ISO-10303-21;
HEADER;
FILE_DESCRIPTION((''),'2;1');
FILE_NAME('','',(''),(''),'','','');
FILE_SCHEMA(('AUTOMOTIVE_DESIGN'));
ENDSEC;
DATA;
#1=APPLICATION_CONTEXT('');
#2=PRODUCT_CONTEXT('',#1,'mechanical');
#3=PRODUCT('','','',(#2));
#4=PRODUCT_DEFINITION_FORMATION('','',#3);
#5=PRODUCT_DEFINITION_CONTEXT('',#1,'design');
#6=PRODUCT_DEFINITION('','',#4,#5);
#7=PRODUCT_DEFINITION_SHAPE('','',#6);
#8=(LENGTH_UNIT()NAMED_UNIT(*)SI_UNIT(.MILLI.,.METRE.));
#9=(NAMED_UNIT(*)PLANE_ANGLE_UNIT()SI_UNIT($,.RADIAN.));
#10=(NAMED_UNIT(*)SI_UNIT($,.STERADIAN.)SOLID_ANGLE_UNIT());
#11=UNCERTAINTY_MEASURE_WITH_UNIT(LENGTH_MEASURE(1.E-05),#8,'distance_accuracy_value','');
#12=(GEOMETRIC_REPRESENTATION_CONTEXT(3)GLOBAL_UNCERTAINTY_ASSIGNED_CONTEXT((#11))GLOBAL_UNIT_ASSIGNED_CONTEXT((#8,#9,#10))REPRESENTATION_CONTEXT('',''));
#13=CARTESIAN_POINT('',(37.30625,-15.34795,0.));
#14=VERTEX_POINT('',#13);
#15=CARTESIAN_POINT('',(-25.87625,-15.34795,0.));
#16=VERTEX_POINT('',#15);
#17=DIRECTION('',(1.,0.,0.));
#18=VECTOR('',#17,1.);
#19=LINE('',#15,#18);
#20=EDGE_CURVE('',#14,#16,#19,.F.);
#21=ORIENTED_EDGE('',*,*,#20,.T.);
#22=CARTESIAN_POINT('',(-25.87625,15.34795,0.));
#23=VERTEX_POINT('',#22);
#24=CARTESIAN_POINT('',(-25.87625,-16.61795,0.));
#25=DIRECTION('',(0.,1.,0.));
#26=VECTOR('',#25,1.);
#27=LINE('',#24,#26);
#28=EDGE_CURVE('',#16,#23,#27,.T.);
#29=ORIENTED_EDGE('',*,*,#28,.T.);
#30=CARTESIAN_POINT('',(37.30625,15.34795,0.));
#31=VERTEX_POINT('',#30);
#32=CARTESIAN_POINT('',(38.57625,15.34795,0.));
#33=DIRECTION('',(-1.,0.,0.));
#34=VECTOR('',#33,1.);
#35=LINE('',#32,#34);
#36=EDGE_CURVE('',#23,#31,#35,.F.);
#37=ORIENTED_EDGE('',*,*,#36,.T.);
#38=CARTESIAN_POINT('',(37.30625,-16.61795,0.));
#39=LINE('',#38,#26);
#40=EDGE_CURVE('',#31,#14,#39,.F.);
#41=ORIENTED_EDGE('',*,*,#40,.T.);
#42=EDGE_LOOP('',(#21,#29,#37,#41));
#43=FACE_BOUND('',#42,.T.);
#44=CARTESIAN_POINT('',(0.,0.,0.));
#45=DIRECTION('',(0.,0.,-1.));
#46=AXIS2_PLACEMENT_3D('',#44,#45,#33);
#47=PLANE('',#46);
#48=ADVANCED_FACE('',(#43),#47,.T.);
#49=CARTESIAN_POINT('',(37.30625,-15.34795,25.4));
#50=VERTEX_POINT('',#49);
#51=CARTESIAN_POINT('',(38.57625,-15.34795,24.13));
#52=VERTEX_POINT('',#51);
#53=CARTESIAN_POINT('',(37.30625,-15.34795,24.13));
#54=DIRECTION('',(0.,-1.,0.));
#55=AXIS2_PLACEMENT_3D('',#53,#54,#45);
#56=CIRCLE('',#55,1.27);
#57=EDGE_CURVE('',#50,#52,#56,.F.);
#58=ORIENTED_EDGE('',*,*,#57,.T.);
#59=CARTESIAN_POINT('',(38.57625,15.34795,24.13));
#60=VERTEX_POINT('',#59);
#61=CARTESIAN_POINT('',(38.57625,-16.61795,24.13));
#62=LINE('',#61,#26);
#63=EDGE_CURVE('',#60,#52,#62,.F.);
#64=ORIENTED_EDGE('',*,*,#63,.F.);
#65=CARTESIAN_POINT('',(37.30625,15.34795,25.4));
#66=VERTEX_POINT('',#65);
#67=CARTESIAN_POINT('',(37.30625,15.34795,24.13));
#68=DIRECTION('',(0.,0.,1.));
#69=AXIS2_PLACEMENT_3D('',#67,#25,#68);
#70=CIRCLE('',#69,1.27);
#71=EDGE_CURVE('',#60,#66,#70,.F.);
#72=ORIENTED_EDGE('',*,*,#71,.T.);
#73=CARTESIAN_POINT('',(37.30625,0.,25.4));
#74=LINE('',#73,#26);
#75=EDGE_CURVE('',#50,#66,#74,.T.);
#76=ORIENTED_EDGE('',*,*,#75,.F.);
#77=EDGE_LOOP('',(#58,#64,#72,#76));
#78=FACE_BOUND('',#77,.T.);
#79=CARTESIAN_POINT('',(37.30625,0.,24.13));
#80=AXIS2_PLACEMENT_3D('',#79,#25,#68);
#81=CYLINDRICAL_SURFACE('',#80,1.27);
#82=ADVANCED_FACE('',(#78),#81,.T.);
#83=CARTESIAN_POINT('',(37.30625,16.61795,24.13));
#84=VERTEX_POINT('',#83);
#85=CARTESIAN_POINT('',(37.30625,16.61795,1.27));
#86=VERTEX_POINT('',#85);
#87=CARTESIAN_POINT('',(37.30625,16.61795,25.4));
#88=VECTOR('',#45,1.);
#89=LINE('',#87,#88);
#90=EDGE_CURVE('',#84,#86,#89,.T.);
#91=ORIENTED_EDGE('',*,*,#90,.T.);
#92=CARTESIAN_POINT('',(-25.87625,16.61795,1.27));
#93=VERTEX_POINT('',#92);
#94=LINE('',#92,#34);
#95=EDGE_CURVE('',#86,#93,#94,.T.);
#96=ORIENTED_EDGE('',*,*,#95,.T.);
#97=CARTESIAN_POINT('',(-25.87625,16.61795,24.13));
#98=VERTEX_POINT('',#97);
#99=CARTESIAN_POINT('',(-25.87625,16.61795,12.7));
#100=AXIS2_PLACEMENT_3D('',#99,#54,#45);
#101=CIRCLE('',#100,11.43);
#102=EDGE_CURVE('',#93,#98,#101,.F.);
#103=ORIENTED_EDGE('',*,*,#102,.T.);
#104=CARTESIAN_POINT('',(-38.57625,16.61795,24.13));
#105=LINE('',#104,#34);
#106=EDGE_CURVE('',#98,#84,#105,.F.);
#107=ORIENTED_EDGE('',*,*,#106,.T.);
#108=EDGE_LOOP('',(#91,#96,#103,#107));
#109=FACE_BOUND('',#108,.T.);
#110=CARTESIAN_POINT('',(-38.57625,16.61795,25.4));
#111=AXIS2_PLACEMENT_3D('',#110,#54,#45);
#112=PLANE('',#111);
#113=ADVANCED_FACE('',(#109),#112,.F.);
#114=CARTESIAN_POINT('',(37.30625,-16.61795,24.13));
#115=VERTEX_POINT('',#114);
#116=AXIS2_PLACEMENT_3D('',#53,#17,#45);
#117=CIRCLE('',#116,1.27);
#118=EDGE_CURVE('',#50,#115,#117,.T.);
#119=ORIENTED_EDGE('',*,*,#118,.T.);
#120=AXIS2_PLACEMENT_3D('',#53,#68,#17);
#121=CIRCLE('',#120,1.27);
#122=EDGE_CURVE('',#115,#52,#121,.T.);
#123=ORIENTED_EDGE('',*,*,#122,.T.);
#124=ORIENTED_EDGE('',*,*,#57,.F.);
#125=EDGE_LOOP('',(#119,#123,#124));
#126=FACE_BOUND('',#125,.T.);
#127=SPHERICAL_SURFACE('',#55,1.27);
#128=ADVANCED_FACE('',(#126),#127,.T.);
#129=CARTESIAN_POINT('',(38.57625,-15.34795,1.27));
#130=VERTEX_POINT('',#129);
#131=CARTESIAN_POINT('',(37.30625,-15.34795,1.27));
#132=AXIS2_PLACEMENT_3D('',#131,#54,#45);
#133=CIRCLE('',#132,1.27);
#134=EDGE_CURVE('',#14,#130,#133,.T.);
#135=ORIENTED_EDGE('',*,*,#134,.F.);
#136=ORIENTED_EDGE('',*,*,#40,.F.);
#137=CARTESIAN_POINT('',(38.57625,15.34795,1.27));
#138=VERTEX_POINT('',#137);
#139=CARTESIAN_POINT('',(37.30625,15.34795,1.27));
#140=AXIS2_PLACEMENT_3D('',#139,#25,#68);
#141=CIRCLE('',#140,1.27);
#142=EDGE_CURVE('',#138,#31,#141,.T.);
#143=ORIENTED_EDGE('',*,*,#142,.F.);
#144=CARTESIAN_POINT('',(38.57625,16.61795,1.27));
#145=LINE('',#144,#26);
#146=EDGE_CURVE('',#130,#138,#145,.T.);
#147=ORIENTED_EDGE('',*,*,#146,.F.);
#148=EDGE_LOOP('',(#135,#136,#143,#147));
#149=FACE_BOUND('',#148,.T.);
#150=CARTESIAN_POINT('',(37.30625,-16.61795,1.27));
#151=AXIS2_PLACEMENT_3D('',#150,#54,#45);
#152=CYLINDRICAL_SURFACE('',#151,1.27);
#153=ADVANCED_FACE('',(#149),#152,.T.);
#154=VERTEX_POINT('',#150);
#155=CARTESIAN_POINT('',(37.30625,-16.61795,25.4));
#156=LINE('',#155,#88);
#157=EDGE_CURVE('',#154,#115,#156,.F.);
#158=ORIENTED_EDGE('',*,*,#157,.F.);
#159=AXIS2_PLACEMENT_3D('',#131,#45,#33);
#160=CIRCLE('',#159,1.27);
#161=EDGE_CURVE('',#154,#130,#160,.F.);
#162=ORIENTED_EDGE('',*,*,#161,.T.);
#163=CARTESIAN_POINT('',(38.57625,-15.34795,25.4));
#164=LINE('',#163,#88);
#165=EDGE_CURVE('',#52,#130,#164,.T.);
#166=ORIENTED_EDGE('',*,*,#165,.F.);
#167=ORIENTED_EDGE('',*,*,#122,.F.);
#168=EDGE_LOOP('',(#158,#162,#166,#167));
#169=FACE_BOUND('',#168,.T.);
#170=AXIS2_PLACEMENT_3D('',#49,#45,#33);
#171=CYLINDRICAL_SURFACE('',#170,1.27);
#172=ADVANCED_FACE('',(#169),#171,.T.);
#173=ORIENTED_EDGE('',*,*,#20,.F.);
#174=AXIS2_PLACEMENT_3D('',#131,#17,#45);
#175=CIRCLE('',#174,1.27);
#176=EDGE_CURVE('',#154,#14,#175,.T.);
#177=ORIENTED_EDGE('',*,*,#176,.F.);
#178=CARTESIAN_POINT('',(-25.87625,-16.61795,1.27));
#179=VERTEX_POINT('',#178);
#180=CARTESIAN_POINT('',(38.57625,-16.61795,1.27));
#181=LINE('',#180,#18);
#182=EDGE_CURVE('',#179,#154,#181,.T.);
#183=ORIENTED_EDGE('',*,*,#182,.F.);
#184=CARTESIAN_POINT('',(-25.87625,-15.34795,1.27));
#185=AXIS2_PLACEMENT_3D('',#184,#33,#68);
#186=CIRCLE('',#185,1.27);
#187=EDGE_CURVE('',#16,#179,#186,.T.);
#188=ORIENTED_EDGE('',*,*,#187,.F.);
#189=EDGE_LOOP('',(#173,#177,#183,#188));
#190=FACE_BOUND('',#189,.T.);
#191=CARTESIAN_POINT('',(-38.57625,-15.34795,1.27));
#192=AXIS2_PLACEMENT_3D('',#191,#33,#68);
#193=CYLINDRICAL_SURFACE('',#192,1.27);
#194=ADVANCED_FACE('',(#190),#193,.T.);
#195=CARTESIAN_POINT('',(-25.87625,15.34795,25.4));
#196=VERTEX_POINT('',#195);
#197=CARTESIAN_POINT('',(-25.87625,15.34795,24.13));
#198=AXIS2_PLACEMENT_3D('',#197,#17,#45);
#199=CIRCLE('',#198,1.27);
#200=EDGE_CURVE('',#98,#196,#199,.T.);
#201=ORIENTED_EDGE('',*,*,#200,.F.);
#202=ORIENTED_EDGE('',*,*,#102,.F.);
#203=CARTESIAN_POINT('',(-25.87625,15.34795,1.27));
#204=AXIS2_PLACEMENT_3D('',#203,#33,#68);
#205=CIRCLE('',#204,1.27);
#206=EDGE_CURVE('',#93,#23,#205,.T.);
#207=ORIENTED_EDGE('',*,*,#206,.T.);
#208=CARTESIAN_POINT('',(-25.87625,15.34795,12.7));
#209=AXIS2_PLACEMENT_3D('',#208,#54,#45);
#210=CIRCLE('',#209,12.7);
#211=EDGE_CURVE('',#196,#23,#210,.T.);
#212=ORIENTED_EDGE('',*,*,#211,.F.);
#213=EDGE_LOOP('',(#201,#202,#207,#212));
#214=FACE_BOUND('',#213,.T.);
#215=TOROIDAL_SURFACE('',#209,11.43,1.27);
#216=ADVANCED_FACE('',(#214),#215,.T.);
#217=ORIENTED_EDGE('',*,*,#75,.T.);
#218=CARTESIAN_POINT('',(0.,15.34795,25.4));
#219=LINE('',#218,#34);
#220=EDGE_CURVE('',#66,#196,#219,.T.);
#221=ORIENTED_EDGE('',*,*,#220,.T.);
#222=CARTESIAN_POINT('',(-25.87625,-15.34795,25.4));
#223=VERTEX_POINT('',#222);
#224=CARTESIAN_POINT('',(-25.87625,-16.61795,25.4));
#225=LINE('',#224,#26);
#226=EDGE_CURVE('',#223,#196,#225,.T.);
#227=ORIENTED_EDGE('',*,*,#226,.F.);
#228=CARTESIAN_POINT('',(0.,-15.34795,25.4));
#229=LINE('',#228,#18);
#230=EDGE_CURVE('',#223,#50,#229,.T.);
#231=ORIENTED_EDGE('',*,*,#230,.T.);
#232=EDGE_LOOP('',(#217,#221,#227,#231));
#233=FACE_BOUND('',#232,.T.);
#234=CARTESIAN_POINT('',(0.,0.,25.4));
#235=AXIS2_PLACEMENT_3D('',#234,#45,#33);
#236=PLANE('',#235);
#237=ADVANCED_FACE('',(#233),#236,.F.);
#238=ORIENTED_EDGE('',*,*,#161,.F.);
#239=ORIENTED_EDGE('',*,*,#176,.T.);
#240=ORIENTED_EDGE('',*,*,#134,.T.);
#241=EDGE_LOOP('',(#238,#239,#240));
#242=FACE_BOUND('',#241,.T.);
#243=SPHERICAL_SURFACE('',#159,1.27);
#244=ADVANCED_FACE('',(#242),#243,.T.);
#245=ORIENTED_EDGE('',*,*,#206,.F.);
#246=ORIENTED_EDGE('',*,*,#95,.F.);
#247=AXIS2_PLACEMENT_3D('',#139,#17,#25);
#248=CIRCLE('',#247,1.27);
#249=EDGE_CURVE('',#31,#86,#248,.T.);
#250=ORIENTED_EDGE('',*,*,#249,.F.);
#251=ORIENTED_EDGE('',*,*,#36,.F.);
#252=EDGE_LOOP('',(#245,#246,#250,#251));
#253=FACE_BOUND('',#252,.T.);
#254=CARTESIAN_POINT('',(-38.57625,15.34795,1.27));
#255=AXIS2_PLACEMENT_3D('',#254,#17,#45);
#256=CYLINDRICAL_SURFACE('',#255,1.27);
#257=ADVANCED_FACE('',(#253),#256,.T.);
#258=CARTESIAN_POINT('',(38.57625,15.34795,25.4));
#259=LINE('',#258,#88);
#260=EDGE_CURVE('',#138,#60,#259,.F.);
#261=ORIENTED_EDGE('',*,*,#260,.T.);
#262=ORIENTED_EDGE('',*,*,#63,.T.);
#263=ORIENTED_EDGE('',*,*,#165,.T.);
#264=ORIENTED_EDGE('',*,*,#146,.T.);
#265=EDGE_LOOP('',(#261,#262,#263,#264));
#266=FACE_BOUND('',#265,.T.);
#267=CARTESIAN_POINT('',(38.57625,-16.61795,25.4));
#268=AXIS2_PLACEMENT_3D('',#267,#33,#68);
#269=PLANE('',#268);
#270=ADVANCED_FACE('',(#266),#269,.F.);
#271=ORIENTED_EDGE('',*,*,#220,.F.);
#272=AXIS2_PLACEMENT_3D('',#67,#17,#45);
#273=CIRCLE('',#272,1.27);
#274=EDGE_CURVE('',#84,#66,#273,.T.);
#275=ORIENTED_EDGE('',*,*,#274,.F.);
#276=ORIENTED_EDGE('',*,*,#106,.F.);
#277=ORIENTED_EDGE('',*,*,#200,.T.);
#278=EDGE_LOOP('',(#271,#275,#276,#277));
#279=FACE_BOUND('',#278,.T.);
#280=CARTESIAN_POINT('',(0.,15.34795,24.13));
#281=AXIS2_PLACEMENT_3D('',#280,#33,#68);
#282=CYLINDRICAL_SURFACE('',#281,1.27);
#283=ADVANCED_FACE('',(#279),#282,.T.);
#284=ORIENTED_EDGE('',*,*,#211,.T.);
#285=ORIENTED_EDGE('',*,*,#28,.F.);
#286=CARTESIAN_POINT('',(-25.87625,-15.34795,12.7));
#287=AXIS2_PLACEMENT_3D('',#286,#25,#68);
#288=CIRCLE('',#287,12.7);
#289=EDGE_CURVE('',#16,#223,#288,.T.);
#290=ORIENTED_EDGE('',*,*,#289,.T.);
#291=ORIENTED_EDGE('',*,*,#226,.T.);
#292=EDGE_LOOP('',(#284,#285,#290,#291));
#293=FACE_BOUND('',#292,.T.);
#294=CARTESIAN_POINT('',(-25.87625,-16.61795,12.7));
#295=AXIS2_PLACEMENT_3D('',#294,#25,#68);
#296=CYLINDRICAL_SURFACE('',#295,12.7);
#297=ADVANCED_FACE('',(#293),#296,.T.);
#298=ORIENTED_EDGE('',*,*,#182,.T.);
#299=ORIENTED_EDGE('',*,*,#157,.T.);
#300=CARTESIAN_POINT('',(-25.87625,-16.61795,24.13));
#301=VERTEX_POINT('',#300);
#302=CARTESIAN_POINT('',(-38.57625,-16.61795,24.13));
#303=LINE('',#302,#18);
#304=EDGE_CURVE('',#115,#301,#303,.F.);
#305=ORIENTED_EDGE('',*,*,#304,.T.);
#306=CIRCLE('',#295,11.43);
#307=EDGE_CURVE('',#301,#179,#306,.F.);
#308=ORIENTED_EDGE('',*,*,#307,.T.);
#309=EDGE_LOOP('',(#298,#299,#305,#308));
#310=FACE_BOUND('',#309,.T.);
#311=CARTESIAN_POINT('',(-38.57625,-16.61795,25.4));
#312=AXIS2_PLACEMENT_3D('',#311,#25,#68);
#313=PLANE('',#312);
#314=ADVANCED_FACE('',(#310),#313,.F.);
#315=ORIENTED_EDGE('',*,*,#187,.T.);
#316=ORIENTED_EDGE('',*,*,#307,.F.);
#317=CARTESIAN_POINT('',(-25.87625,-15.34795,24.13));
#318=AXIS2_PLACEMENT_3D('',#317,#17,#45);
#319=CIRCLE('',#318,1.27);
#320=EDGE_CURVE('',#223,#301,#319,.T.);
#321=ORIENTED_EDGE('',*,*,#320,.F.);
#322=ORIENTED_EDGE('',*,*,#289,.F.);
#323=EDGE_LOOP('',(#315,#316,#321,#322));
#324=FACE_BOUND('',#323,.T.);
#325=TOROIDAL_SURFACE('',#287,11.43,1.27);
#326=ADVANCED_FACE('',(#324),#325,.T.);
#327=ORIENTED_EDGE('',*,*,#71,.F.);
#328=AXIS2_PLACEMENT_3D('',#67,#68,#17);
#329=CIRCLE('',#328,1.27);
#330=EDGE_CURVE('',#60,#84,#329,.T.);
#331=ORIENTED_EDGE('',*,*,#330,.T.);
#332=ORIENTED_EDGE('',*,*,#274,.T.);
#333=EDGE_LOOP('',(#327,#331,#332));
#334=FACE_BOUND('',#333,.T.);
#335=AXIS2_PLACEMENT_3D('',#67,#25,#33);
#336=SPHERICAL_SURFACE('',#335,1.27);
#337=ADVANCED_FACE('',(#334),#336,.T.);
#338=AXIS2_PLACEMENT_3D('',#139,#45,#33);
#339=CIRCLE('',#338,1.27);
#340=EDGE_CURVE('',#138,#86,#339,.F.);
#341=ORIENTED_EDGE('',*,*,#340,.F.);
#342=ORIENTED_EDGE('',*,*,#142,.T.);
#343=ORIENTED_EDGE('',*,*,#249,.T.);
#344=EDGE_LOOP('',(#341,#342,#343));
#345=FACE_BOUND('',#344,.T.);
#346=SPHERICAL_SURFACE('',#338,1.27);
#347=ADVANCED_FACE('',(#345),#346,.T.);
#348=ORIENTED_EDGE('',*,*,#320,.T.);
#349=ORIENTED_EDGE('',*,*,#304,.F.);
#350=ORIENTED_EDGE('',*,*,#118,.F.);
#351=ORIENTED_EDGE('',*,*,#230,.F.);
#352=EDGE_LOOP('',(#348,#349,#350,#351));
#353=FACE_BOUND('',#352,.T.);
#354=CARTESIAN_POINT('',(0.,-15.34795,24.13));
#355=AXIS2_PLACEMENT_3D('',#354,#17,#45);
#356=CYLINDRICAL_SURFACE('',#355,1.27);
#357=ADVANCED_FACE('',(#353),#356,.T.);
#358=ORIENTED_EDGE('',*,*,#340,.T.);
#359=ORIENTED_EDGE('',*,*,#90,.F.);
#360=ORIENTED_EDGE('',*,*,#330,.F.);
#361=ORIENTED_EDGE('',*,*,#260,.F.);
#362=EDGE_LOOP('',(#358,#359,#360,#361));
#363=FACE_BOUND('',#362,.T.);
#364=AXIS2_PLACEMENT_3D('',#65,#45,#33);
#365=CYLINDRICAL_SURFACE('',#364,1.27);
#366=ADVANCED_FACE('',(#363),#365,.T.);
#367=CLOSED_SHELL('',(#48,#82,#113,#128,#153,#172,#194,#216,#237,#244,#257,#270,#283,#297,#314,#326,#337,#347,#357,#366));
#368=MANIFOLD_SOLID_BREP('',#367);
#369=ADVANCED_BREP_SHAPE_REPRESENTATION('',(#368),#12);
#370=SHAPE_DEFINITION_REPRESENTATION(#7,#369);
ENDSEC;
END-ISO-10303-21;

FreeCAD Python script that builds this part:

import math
import FreeCAD as App
import Part
import Sketcher

V = App.Vector
Q = App.Units.Quantity


def add_polygon(sketch, points):
    """Adds a closed chain of lines whose ends are joined by coincident constraints."""
    first, n = sketch.GeometryCount, len(points)
    for a, b in zip(points, points[1:] + points[:1]):
        sketch.addGeometry(Part.LineSegment(App.Vector(*a, 0), App.Vector(*b, 0)), False)
    for i in range(n):
        sketch.addConstraint(Sketcher.Constraint("Coincident", first + i, 2, first + (i + 1) % n, 1))

doc = App.newDocument("Part")
params = doc.addObject("Spreadsheet::Sheet", "Params")
for row, (alias, value) in enumerate([
    ("pad1_length", "1 in"),
    ("sketch2_radius", "0.5 in"),
    ("fillet_radius", "0.05 in"),
], start=1):
    params.set(f"A{row}", alias)
    params.set(f"B{row}", "=" + value)
    params.setAlias(f"B{row}", alias)

body = doc.addObject("PartDesign::Body", "Body")

sketch1 = body.newObject("Sketcher::SketchObject", "Sketch")
sketch1.AttachmentSupport = (doc.getObject("XY_Plane"), [""])
sketch1.MapMode = "FlatFace"
add_polygon(sketch1, [(-39, 17), (-39, -17), (39, -17), (39, 17)])
sketch1.addConstraint([
    Sketcher.Constraint("Vertical", 0),
    Sketcher.Constraint("Horizontal", 1),
    Sketcher.Constraint("Vertical", 2),
    Sketcher.Constraint("Horizontal", 3),
    Sketcher.Constraint("Symmetric", 0, 2, 2, 2, -1, 1),
    Sketcher.Constraint("DistanceX", 1, 1, 1, 2, Q("3.0375 in")),
    Sketcher.Constraint("DistanceY", 0, 2, 0, 1, Q("1.3085 in")),
])
pad1 = body.newObject("PartDesign::Pad", "Pad")
pad1.Profile = sketch1
pad1.setExpression("Length", "Params.pad1_length")

sketch2 = body.newObject("Sketcher::SketchObject", "Sketch001")
sketch2.AttachmentSupport = (doc.getObject("XZ_Plane"), [""])
sketch2.MapMode = "FlatFace"
sketch2.AttachmentOffset = App.Placement(V(0, 0, -16.61795), App.Rotation())
sketch2.addGeometry([
    Part.LineSegment(V(-26, 0, 0), V(-51, 0, 0)),
    Part.LineSegment(V(-51, 0, 0), V(-51, 25, 0)),
    Part.LineSegment(V(-51, 25, 0), V(-26, 25, 0)),
    Part.ArcOfCircle(Part.Circle(V(-26, 13, 0), V(0, 0, 1), 13), math.radians(90), math.radians(180)),
    Part.ArcOfCircle(Part.Circle(V(-26, 13, 0), V(0, 0, 1), 13), math.radians(180), math.radians(270)),
], False)
sketch2.addConstraint([
    Sketcher.Constraint("Coincident", 0, 2, 1, 1),
    Sketcher.Constraint("Coincident", 1, 2, 2, 1),
    Sketcher.Constraint("Tangent", 2, 2, 3, 1),
    Sketcher.Constraint("Tangent", 3, 2, 4, 1),
    Sketcher.Constraint("Tangent", 4, 2, 0, 1),
    Sketcher.Constraint("Horizontal", 0),
    Sketcher.Constraint("Vertical", 1),
    Sketcher.Constraint("Horizontal", 2),
    Sketcher.Constraint("Equal", 3, 4),
    Sketcher.Constraint("PointOnObject", 0, 2, -1),
    Sketcher.Constraint("Horizontal", 4, 3, 3, 2),
    Sketcher.Constraint("Equal", 2, 1),
    Sketcher.Constraint("Radius", 3, Q("0.5 in")),
    Sketcher.Constraint("DistanceX", 3, 3, -1, 1, 25.87625),
])
sketch2.setExpression("Constraints[12]", "Params.sketch2_radius")
pocket1 = body.newObject("PartDesign::Pocket", "Pocket")
pocket1.Profile = sketch2
pocket1.Type = "ThroughAll"
pocket1.Reversed = True
doc.recompute()

fillet = body.newObject("PartDesign::Fillet", "Fillet")
fillet.Base = (pocket1, ["Edge1"])
fillet.UseAllEdges = True
fillet.setExpression("Radius", "Params.fillet_radius")

doc.recompute()
